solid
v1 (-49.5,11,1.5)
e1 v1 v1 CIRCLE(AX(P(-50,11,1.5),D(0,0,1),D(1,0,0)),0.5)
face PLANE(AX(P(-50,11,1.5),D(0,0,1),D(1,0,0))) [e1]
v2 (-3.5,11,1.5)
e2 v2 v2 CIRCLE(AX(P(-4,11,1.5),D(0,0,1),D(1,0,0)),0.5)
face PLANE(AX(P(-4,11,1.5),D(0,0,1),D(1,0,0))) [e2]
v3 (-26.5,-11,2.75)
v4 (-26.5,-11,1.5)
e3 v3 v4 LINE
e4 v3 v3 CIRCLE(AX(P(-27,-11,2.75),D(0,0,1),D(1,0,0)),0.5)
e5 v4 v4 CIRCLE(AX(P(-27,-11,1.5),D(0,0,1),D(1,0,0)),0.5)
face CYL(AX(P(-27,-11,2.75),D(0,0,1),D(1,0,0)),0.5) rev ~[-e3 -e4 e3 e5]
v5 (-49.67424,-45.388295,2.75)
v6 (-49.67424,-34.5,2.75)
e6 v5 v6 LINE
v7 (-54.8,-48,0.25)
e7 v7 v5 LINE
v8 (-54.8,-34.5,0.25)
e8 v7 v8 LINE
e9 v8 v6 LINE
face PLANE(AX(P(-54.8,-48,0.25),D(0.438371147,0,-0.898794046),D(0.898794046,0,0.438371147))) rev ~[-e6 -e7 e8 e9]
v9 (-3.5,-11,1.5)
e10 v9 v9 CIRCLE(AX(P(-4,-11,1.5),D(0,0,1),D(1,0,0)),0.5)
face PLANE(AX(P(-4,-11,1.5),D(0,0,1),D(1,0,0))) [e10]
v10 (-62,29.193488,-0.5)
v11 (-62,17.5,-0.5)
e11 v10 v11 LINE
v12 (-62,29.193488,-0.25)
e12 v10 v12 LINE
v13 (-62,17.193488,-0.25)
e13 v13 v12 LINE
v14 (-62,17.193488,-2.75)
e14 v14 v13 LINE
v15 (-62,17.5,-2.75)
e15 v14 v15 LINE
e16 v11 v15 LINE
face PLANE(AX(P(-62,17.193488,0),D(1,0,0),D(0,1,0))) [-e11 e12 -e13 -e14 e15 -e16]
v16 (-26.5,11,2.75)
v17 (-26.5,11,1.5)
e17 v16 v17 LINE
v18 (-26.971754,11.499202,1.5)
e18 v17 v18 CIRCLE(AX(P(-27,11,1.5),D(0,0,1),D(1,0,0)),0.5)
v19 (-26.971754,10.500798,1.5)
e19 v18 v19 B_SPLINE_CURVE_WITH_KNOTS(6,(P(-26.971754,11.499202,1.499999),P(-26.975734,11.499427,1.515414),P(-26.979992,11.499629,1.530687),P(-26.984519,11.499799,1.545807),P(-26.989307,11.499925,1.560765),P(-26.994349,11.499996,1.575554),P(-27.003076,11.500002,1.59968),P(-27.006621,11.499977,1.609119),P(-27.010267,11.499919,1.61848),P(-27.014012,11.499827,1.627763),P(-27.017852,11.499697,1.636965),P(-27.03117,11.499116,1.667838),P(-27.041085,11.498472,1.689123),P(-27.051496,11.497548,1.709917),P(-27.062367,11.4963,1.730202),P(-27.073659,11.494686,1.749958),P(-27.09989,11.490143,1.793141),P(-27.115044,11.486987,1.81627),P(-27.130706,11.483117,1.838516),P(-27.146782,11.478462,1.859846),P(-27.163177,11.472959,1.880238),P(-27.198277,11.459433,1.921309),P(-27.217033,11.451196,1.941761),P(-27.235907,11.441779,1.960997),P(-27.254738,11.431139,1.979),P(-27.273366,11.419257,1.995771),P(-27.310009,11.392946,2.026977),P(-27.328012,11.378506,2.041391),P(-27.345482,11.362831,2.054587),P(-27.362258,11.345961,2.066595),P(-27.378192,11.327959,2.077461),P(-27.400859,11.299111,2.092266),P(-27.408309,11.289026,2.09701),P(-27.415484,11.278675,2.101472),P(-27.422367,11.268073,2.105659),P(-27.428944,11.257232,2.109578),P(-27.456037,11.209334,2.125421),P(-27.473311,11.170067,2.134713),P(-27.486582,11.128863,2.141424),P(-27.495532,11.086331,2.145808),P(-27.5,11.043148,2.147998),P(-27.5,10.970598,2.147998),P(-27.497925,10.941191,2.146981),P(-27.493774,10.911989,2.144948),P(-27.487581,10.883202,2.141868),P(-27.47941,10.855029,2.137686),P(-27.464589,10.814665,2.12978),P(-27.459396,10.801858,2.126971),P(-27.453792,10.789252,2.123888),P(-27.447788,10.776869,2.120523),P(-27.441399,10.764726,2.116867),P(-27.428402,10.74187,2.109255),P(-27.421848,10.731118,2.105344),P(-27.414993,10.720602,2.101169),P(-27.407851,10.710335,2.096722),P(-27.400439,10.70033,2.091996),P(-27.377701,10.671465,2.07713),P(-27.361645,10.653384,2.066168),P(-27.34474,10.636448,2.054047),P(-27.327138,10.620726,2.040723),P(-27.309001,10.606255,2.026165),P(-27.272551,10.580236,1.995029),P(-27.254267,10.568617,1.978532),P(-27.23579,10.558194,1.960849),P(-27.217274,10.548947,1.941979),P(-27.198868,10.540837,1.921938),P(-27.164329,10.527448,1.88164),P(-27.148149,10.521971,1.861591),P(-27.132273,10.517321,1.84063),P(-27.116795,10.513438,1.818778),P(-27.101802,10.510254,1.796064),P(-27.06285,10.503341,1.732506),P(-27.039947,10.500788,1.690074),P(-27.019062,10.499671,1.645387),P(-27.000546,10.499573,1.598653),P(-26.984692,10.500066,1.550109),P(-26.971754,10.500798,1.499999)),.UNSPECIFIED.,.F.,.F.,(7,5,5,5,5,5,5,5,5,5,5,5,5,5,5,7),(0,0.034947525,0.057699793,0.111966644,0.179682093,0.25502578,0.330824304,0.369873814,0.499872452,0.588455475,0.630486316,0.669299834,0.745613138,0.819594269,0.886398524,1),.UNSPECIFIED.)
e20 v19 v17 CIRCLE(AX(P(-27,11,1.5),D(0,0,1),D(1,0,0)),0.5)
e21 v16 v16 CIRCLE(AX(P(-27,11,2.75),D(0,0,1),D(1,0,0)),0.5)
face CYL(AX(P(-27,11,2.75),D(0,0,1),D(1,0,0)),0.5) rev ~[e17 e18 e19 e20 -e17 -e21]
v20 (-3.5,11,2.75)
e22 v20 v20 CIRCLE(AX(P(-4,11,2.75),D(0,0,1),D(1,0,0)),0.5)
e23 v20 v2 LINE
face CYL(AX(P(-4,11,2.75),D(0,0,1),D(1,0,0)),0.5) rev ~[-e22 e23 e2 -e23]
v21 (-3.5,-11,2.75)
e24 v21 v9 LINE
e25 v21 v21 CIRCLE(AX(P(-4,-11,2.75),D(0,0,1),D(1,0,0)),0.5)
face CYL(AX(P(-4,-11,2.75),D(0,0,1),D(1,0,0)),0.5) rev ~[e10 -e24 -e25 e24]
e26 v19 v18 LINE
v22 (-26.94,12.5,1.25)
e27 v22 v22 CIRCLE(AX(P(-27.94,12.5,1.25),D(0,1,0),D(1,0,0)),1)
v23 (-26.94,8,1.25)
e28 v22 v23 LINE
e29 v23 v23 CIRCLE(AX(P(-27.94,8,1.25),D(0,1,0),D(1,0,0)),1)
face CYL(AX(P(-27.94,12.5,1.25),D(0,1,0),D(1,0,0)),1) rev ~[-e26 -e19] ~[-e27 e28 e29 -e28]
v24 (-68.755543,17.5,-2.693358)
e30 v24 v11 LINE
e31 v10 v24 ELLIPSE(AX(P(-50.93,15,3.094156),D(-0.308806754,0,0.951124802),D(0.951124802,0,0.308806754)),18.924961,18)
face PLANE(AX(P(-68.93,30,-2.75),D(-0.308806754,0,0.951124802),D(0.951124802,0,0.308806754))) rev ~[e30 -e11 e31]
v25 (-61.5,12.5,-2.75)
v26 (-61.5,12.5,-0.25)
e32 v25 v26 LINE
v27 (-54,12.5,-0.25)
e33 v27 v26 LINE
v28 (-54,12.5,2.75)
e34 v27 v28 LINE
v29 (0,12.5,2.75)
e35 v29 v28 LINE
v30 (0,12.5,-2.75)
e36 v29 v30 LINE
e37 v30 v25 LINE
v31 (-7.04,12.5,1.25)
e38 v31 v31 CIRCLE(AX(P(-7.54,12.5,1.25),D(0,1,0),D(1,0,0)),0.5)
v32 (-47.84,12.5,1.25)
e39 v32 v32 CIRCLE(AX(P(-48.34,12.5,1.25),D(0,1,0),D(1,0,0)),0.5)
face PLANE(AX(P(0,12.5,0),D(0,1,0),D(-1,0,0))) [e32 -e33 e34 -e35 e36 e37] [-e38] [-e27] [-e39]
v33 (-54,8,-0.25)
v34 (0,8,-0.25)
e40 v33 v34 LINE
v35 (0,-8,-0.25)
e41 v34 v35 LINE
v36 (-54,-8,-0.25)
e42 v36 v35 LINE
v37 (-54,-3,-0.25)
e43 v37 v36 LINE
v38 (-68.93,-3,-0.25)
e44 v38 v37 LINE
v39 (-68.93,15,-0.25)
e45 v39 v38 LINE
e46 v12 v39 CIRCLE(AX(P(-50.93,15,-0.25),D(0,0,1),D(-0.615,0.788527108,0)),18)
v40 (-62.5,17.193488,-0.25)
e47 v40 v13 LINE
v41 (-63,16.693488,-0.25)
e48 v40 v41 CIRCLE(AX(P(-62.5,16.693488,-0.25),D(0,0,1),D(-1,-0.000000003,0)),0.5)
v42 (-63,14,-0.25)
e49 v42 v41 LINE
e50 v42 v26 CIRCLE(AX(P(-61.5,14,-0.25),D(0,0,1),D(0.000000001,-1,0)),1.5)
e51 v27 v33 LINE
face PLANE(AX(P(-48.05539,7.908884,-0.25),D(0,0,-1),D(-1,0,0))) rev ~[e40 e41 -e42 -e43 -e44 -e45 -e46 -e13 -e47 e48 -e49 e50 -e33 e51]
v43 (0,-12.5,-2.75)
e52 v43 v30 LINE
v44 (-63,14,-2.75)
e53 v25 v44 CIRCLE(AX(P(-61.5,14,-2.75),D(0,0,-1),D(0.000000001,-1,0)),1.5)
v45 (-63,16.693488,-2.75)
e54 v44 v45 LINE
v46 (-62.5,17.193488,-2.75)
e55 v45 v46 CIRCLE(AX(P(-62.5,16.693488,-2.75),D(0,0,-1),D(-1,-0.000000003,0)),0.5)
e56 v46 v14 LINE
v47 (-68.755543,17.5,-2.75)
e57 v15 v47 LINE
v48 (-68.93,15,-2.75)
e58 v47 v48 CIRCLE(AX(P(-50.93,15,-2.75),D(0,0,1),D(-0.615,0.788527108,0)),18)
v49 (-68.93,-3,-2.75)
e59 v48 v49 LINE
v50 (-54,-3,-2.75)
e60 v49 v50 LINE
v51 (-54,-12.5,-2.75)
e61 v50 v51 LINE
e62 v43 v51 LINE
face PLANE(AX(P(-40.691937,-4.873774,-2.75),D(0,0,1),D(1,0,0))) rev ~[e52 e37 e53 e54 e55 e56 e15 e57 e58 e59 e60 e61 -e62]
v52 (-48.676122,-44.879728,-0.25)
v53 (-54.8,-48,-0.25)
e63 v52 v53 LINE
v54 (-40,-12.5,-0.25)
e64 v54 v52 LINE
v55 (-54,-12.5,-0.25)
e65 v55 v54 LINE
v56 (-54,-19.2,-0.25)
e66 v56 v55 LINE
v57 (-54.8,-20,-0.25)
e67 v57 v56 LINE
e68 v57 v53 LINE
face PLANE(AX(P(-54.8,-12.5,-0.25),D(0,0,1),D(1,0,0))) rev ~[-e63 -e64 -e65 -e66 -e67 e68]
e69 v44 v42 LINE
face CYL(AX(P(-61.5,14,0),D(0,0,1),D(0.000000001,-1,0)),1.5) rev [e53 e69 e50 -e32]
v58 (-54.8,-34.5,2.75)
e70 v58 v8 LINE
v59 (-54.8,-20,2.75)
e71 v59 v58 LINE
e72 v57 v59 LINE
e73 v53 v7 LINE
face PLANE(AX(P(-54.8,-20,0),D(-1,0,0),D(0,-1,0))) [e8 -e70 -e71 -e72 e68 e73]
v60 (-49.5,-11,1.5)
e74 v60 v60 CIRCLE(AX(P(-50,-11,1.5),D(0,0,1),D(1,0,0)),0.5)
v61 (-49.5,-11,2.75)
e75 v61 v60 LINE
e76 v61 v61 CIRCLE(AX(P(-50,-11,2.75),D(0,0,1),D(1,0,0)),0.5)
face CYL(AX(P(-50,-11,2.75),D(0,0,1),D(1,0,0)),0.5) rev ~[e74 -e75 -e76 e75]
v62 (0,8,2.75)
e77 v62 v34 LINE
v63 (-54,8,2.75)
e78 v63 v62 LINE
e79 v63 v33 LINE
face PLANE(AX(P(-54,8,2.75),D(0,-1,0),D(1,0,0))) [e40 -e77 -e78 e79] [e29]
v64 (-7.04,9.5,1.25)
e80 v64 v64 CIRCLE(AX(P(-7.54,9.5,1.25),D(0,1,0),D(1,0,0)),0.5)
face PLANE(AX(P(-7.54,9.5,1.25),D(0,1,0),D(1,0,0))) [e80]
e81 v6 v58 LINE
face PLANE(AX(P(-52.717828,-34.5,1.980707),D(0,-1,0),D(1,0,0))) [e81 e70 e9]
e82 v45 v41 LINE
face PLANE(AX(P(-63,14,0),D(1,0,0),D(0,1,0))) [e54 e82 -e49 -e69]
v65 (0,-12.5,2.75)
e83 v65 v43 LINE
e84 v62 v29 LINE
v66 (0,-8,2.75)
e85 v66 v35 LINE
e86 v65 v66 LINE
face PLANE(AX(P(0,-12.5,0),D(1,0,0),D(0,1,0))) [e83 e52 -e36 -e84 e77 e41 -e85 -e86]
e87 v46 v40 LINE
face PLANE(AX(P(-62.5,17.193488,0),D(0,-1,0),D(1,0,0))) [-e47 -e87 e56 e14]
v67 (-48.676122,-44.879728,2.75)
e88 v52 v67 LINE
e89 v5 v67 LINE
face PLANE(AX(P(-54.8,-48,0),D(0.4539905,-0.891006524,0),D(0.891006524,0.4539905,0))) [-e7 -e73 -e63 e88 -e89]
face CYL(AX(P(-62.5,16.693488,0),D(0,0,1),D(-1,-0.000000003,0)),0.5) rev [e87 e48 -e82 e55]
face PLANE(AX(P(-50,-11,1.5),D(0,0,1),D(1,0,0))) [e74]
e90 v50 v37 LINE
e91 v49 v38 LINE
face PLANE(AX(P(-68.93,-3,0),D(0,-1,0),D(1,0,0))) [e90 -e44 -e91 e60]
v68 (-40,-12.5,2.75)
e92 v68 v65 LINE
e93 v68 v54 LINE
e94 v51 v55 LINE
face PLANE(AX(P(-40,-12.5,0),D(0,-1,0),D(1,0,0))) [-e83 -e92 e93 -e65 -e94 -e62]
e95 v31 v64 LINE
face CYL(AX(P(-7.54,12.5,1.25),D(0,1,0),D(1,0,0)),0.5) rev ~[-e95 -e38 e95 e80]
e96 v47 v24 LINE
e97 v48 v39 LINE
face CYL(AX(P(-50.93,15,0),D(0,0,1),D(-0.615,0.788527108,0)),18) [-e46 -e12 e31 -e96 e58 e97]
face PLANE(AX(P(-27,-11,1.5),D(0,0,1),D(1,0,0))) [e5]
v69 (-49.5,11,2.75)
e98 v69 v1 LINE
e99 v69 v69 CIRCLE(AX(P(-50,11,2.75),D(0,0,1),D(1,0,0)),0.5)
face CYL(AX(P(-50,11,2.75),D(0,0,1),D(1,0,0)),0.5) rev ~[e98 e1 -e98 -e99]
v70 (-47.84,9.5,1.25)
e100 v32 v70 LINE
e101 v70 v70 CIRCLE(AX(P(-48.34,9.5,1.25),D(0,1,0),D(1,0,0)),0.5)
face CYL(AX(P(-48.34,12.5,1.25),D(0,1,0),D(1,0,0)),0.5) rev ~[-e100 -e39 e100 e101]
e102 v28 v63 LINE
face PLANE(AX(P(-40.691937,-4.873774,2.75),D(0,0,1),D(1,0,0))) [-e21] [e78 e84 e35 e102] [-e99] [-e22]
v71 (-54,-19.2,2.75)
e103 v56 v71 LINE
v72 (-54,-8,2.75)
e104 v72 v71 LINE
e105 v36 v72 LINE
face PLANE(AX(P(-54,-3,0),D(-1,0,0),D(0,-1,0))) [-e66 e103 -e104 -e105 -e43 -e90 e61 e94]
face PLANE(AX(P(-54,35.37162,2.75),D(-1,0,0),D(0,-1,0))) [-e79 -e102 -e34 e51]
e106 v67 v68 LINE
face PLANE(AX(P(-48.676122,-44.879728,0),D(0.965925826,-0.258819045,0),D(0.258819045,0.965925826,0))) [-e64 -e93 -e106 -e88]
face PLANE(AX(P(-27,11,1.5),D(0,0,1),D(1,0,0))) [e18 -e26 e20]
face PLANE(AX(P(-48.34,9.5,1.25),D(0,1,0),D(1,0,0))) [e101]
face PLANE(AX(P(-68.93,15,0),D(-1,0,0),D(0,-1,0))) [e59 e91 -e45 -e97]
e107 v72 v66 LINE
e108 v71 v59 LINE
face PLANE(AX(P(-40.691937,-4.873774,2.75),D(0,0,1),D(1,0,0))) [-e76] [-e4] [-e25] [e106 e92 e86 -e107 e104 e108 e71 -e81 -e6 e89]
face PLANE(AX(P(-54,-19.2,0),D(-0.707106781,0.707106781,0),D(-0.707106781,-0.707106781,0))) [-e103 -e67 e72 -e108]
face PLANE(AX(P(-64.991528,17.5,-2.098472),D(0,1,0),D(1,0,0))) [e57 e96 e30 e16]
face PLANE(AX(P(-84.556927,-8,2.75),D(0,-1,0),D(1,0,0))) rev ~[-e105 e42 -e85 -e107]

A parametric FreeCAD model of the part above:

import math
import FreeCAD as App
import Part
import Sketcher

V = App.Vector
Q = App.Units.Quantity

doc = App.newDocument("Part")
body = doc.addObject("PartDesign::Body", "Body")

sketch1 = body.newObject("Sketcher::SketchObject", "Sketch")
sketch1.AttachmentSupport = (doc.getObject("XY_Plane"), [""])
sketch1.MapMode = "FlatFace"
sketch1.addGeometry([
    Part.LineSegment(V(0, 12.5, 0), V(-61.5, 12.5, 0)),
    Part.ArcOfCircle(Part.Circle(V(-61.5, 14, 0), V(0, 0, 1), 1.5), math.radians(180), math.radians(270)),
    Part.LineSegment(V(-63, 14, 0), V(-63, 16.693488, 0)),
    Part.ArcOfCircle(Part.Circle(V(-62.5, 16.693488, 0), V(0, 0, 1), 0.5), math.radians(90), math.radians(180)),
    Part.LineSegment(V(-62.5, 17.193488, 0), V(-62, 17.193488, 0)),
    Part.LineSegment(V(-62, 17.193488, 0), V(-62, 29.193488, 0)),
    Part.ArcOfCircle(Part.Circle(V(-50.93, 15, 0), V(0, 0, 1), 18), math.radians(127.95192), math.radians(180)),
    Part.LineSegment(V(-68.93, 15, 0), V(-68.93, -3, 0)),
    Part.LineSegment(V(-68.93, -3, 0), V(-54, -3, 0)),
    Part.LineSegment(V(-54, -3, 0), V(-54, -19.2, 0)),
    Part.LineSegment(V(-54, -19.2, 0), V(-54.8, -20, 0)),
    Part.LineSegment(V(-54.8, -20, 0), V(-54.8, -48, 0)),
    Part.LineSegment(V(-54.8, -48, 0), V(-48.676122, -44.879728, 0)),
    Part.LineSegment(V(-48.676122, -44.879728, 0), V(-40, -12.5, 0)),
    Part.LineSegment(V(-40, -12.5, 0), V(0, -12.5, 0)),
    Part.LineSegment(V(0, -12.5, 0), V(0, 12.5, 0)),
], False)
sketch1.addConstraint([
    Sketcher.Constraint("Tangent", 0, 2, 1, 2),
    Sketcher.Constraint("Tangent", 1, 1, 2, 1),
    Sketcher.Constraint("Tangent", 2, 2, 3, 2),
    Sketcher.Constraint("Tangent", 3, 1, 4, 1),
    Sketcher.Constraint("Coincident", 4, 2, 5, 1),
    Sketcher.Constraint("Coincident", 5, 2, 6, 1),
    Sketcher.Constraint("Tangent", 6, 2, 7, 1),
    Sketcher.Constraint("Coincident", 7, 2, 8, 1),
    Sketcher.Constraint("Coincident", 8, 2, 9, 1),
    Sketcher.Constraint("Coincident", 9, 2, 10, 1),
    Sketcher.Constraint("Coincident", 10, 2, 11, 1),
    Sketcher.Constraint("Coincident", 11, 2, 12, 1),
    Sketcher.Constraint("Coincident", 12, 2, 13, 1),
    Sketcher.Constraint("Coincident", 13, 2, 14, 1),
    Sketcher.Constraint("Coincident", 14, 2, 15, 1),
    Sketcher.Constraint("Coincident", 15, 2, 0, 1),
    Sketcher.Constraint("Horizontal", 0),
    Sketcher.Constraint("Vertical", 2),
    Sketcher.Constraint("Horizontal", 4),
    Sketcher.Constraint("Vertical", 5),
    Sketcher.Constraint("Vertical", 7),
    Sketcher.Constraint("Horizontal", 8),
    Sketcher.Constraint("Vertical", 9),
    Sketcher.Constraint("Vertical", 11),
    Sketcher.Constraint("Horizontal", 14),
    Sketcher.Constraint("Vertical", 15),
    Sketcher.Constraint("Symmetric", 14, 2, 15, 2, -1, 1),
    Sketcher.Constraint("Radius", 6, 18.0),
    Sketcher.Constraint("Radius", 1, 1.5),
    Sketcher.Constraint("Radius", 3, 0.5),
    Sketcher.Constraint("DistanceX", 14, 1, 14, 2, 40.0),
    Sketcher.Constraint("DistanceY", 5, 1, 5, 2, 12.0),
    Sketcher.Constraint("DistanceY", 7, 2, 7, 1, 18.0),
    Sketcher.Constraint("DistanceY", 11, 2, 11, 1, 28.0),
    Sketcher.Constraint("DistanceY", 15, 1, 15, 2, 25.0),
    Sketcher.Constraint("Angle", 10, Q("-135 deg")),
    Sketcher.Constraint("Angle", 12, Q("27 deg")),
    Sketcher.Constraint("Angle", 13, Q("75 deg")),
    Sketcher.Constraint("DistanceX", 0, 2, 0, 1, 61.5),
    Sketcher.Constraint("DistanceX", 4, 1, 4, 2, 0.5),
    Sketcher.Constraint("DistanceY", 9, 2, 9, 1, 16.2),
    Sketcher.Constraint("DistanceY", -1, 1, 6, 3, 15.0),
    Sketcher.Constraint("DistanceX", 8, 2, -1, 1, 54.0),
    Sketcher.Constraint("DistanceY", 10, 2, -1, 1, 20.0),
    Sketcher.Constraint("DistanceX", 8, 1, 8, 2, 14.93),
])
pad1 = body.newObject("PartDesign::Pad", "Pad")
pad1.Profile = sketch1
pad1.Length = 5.5
pad1.Midplane = True

sketch2 = body.newObject("Sketcher::SketchObject", "Sketch001")
sketch2.AttachmentSupport = (doc.getObject("XY_Plane"), [""])
sketch2.MapMode = "FlatFace"
sketch2.AttachmentOffset = App.Placement(V(0, 0, 2.75), App.Rotation())
sketch2.addGeometry([
    Part.LineSegment(V(-84.556927, -8, 0), V(0, -8, 0)),
    Part.LineSegment(V(0, -8, 0), V(0, 8, 0)),
    Part.LineSegment(V(0, 8, 0), V(-54, 8, 0)),
    Part.LineSegment(V(-54, 8, 0), V(-54, 35.37162, 0)),
    Part.LineSegment(V(-54, 35.37162, 0), V(-84.556927, 35.37162, 0)),
    Part.LineSegment(V(-84.556927, 35.37162, 0), V(-84.556927, -8, 0)),
], False)
sketch2.addConstraint([
    Sketcher.Constraint("Coincident", 0, 2, 1, 1),
    Sketcher.Constraint("Coincident", 1, 2, 2, 1),
    Sketcher.Constraint("Coincident", 2, 2, 3, 1),
    Sketcher.Constraint("Coincident", 3, 2, 4, 1),
    Sketcher.Constraint("Coincident", 4, 2, 5, 1),
    Sketcher.Constraint("Coincident", 5, 2, 0, 1),
    Sketcher.Constraint("Horizontal", 0),
    Sketcher.Constraint("Vertical", 1),
    Sketcher.Constraint("Horizontal", 2),
    Sketcher.Constraint("Vertical", 3),
    Sketcher.Constraint("Horizontal", 4),
    Sketcher.Constraint("Vertical", 5),
    Sketcher.Constraint("Symmetric", 0, 2, 1, 2, -1, 1),
    Sketcher.Constraint("DistanceX", 2, 2, 2, 1, 54.0),
    Sketcher.Constraint("DistanceY", 1, 1, 1, 2, 16.0),
    Sketcher.Constraint("DistanceY", 3, 1, 3, 2, 27.37162),
    Sketcher.Constraint("DistanceX", 0, 1, 0, 2, 84.556927),
])
pocket1 = body.newObject("PartDesign::Pocket", "Pocket")
pocket1.Profile = sketch2
pocket1.Length = 3

sketch3 = body.newObject("Sketcher::SketchObject", "Sketch002")
sketch3.AttachmentSupport = (doc.getObject("XY_Plane"), [""])
sketch3.MapMode = "FlatFace"
sketch3.AttachmentOffset = App.Placement(V(0, 0, 2.75), App.Rotation())
sketch3.addGeometry([
    Part.Circle(V(-4, 11, 0), V(0, 0, 1), 0.5),
    Part.Circle(V(-27, 11, 0), V(0, 0, 1), 0.5),
    Part.Circle(V(-50, 11, 0), V(0, 0, 1), 0.5),
    Part.Circle(V(-50, -11, 0), V(0, 0, 1), 0.5),
    Part.Circle(V(-27, -11, 0), V(0, 0, 1), 0.5),
    Part.Circle(V(-4, -11, 0), V(0, 0, 1), 0.5),
], False)
sketch3.addConstraint([
    Sketcher.Constraint("Equal", 0, 1),
    Sketcher.Constraint("Equal", 1, 2),
    Sketcher.Constraint("Equal", 2, 3),
    Sketcher.Constraint("Equal", 3, 4),
    Sketcher.Constraint("Equal", 4, 5),
    Sketcher.Constraint("Symmetric", 2, 3, 3, 3, -1),
    Sketcher.Constraint("Symmetric", 1, 3, 4, 3, -1),
    Sketcher.Constraint("Symmetric", 0, 3, 5, 3, -1),
    Sketcher.Constraint("Horizontal", 0, 3, 1, 3),
    Sketcher.Constraint("Horizontal", 1, 3, 2, 3),
    Sketcher.Constraint("Diameter", 0, 1.0),
    Sketcher.Constraint("DistanceX", 0, 3, -1, 1, 4.0),
    Sketcher.Constraint("DistanceY", -1, 1, 0, 3, 11.0),
    Sketcher.Constraint("DistanceX", 1, 3, -1, 1, 27.0),
    Sketcher.Constraint("DistanceX", 2, 3, -1, 1, 50.0),
])
pocket2 = body.newObject("PartDesign::Pocket", "Pocket001")
pocket2.Profile = sketch3
pocket2.Length = 1.25

sketch4 = body.newObject("Sketcher::SketchObject", "Sketch003")
sketch4.AttachmentSupport = (doc.getObject("XZ_Plane"), [""])
sketch4.MapMode = "FlatFace"
sketch4.AttachmentOffset = App.Placement(V(0, 0, -30), App.Rotation())
sketch4.addGeometry([
    Part.LineSegment(V(-68.93, -2.75, 0), V(-62, -0.5, 0)),
    Part.LineSegment(V(-62, -0.5, 0), V(-62, -2.75, 0)),
    Part.LineSegment(V(-62, -2.75, 0), V(-68.93, -2.75, 0)),
], False)
sketch4.addConstraint([
    Sketcher.Constraint("Coincident", 0, 2, 1, 1),
    Sketcher.Constraint("Coincident", 1, 2, 2, 1),
    Sketcher.Constraint("Coincident", 2, 2, 0, 1),
    Sketcher.Constraint("Vertical", 1),
    Sketcher.Constraint("Horizontal", 2),
    Sketcher.Constraint("DistanceX", 0, 2, -1, 1, 62.0),
    Sketcher.Constraint("DistanceX", 2, 2, 2, 1, 6.93),
    Sketcher.Constraint("DistanceY", 1, 2, 1, 1, 2.25),
    Sketcher.Constraint("DistanceY", 0, 2, -1, 1, 0.5),
])
pocket3 = body.newObject("PartDesign::Pocket", "Pocket002")
pocket3.Profile = sketch4
pocket3.Length = 12.5
pocket3.Reversed = True

sketch5 = body.newObject("Sketcher::SketchObject", "Sketch004")
sketch5.AttachmentSupport = (doc.getObject("XZ_Plane"), [""])
sketch5.MapMode = "FlatFace"
sketch5.AttachmentOffset = App.Placement(V(0, 0, 12.5), App.Rotation())
sketch5.addGeometry([
    Part.LineSegment(V(-54.8, -0.25, 0), V(-54.8, -2.75, 0)),
    Part.LineSegment(V(-54.8, -2.75, 0), V(-40, -2.75, 0)),
    Part.LineSegment(V(-40, -2.75, 0), V(-40, -0.25, 0)),
    Part.LineSegment(V(-40, -0.25, 0), V(-54.8, -0.25, 0)),
], False)
sketch5.addConstraint([
    Sketcher.Constraint("Coincident", 0, 2, 1, 1),
    Sketcher.Constraint("Coincident", 1, 2, 2, 1),
    Sketcher.Constraint("Coincident", 2, 2, 3, 1),
    Sketcher.Constraint("Coincident", 3, 2, 0, 1),
    Sketcher.Constraint("Vertical", 0),
    Sketcher.Constraint("Horizontal", 1),
    Sketcher.Constraint("Vertical", 2),
    Sketcher.Constraint("Horizontal", 3),
    Sketcher.Constraint("DistanceX", 1, 1, 1, 2, 14.8),
    Sketcher.Constraint("DistanceY", 0, 2, 0, 1, 2.5),
    Sketcher.Constraint("DistanceX", 1, 2, -1, 1, 40.0),
    Sketcher.Constraint("DistanceY", 0, 2, -1, 1, 2.75),
])
pocket4 = body.newObject("PartDesign::Pocket", "Pocket003")
pocket4.Profile = sketch5
pocket4.Type = "ThroughAll"
pocket4.Reversed = True

sketch6 = body.newObject("Sketcher::SketchObject", "Sketch005")
sketch6.AttachmentSupport = (doc.getObject("XZ_Plane"), [""])
sketch6.MapMode = "FlatFace"
sketch6.AttachmentOffset = App.Placement(V(0, 0, 48), App.Rotation())
sketch6.addGeometry([
    Part.LineSegment(V(-54.8, 2.75, 0), V(-54.8, 0.25, 0)),
    Part.LineSegment(V(-54.8, 0.25, 0), V(-49.67424, 2.75, 0)),
    Part.LineSegment(V(-49.67424, 2.75, 0), V(-54.8, 2.75, 0)),
], False)
sketch6.addConstraint([
    Sketcher.Constraint("Coincident", 0, 2, 1, 1),
    Sketcher.Constraint("Coincident", 1, 2, 2, 1),
    Sketcher.Constraint("Coincident", 2, 2, 0, 1),
    Sketcher.Constraint("Vertical", 0),
    Sketcher.Constraint("Horizontal", 2),
    Sketcher.Constraint("Angle", 1, Q("26 deg")),
    Sketcher.Constraint("DistanceY", 0, 2, 0, 1, 2.5),
    Sketcher.Constraint("DistanceX", 0, 2, -1, 1, 54.8),
    Sketcher.Constraint("DistanceY", -1, 1, 0, 2, 0.25),
])
pocket5 = body.newObject("PartDesign::Pocket", "Pocket004")
pocket5.Profile = sketch6
pocket5.Length = 13.5

sketch7 = body.newObject("Sketcher::SketchObject", "Sketch006")
sketch7.AttachmentSupport = (doc.getObject("XZ_Plane"), [""])
sketch7.MapMode = "FlatFace"
sketch7.AttachmentOffset = App.Placement(V(0, 0, -12.5), App.Rotation())
sketch7.addGeometry([
    Part.Circle(V(-7.54, 1.25, 0), V(0, 0, 1), 0.5),
    Part.Circle(V(-48.34, 1.25, 0), V(0, 0, 1), 0.5),
], False)
sketch7.addConstraint([
    Sketcher.Constraint("Equal", 0, 1),
    Sketcher.Constraint("Horizontal", 0, 3, 1, 3),
    Sketcher.Constraint("Diameter", 0, 1.0),
    Sketcher.Constraint("DistanceX", 1, 3, 0, 3, 40.8),
    Sketcher.Constraint("DistanceX", 0, 3, -1, 1, 7.54),
    Sketcher.Constraint("DistanceY", -1, 1, 0, 3, 1.25),
])
pocket6 = body.newObject("PartDesign::Pocket", "Pocket005")
pocket6.Profile = sketch7
pocket6.Length = 3
pocket6.Reversed = True

sketch8 = body.newObject("Sketcher::SketchObject", "Sketch007")
sketch8.AttachmentSupport = (doc.getObject("XZ_Plane"), [""])
sketch8.MapMode = "FlatFace"
sketch8.AttachmentOffset = App.Placement(V(0, 0, -12.5), App.Rotation())
sketch8.addGeometry(Part.Circle(V(-27.94, 1.25, 0), V(0, 0, 1), 1), False)
sketch8.addConstraint([
    Sketcher.Constraint("Diameter", 0, 2.0),
    Sketcher.Constraint("DistanceX", 0, 3, -1, 1, 27.94),
    Sketcher.Constraint("DistanceY", -1, 1, 0, 3, 1.25),
])
pocket7 = body.newObject("PartDesign::Pocket", "Pocket006")
pocket7.Profile = sketch8
pocket7.Type = "UpToFirst"
pocket7.Reversed = True

doc.recompute()
